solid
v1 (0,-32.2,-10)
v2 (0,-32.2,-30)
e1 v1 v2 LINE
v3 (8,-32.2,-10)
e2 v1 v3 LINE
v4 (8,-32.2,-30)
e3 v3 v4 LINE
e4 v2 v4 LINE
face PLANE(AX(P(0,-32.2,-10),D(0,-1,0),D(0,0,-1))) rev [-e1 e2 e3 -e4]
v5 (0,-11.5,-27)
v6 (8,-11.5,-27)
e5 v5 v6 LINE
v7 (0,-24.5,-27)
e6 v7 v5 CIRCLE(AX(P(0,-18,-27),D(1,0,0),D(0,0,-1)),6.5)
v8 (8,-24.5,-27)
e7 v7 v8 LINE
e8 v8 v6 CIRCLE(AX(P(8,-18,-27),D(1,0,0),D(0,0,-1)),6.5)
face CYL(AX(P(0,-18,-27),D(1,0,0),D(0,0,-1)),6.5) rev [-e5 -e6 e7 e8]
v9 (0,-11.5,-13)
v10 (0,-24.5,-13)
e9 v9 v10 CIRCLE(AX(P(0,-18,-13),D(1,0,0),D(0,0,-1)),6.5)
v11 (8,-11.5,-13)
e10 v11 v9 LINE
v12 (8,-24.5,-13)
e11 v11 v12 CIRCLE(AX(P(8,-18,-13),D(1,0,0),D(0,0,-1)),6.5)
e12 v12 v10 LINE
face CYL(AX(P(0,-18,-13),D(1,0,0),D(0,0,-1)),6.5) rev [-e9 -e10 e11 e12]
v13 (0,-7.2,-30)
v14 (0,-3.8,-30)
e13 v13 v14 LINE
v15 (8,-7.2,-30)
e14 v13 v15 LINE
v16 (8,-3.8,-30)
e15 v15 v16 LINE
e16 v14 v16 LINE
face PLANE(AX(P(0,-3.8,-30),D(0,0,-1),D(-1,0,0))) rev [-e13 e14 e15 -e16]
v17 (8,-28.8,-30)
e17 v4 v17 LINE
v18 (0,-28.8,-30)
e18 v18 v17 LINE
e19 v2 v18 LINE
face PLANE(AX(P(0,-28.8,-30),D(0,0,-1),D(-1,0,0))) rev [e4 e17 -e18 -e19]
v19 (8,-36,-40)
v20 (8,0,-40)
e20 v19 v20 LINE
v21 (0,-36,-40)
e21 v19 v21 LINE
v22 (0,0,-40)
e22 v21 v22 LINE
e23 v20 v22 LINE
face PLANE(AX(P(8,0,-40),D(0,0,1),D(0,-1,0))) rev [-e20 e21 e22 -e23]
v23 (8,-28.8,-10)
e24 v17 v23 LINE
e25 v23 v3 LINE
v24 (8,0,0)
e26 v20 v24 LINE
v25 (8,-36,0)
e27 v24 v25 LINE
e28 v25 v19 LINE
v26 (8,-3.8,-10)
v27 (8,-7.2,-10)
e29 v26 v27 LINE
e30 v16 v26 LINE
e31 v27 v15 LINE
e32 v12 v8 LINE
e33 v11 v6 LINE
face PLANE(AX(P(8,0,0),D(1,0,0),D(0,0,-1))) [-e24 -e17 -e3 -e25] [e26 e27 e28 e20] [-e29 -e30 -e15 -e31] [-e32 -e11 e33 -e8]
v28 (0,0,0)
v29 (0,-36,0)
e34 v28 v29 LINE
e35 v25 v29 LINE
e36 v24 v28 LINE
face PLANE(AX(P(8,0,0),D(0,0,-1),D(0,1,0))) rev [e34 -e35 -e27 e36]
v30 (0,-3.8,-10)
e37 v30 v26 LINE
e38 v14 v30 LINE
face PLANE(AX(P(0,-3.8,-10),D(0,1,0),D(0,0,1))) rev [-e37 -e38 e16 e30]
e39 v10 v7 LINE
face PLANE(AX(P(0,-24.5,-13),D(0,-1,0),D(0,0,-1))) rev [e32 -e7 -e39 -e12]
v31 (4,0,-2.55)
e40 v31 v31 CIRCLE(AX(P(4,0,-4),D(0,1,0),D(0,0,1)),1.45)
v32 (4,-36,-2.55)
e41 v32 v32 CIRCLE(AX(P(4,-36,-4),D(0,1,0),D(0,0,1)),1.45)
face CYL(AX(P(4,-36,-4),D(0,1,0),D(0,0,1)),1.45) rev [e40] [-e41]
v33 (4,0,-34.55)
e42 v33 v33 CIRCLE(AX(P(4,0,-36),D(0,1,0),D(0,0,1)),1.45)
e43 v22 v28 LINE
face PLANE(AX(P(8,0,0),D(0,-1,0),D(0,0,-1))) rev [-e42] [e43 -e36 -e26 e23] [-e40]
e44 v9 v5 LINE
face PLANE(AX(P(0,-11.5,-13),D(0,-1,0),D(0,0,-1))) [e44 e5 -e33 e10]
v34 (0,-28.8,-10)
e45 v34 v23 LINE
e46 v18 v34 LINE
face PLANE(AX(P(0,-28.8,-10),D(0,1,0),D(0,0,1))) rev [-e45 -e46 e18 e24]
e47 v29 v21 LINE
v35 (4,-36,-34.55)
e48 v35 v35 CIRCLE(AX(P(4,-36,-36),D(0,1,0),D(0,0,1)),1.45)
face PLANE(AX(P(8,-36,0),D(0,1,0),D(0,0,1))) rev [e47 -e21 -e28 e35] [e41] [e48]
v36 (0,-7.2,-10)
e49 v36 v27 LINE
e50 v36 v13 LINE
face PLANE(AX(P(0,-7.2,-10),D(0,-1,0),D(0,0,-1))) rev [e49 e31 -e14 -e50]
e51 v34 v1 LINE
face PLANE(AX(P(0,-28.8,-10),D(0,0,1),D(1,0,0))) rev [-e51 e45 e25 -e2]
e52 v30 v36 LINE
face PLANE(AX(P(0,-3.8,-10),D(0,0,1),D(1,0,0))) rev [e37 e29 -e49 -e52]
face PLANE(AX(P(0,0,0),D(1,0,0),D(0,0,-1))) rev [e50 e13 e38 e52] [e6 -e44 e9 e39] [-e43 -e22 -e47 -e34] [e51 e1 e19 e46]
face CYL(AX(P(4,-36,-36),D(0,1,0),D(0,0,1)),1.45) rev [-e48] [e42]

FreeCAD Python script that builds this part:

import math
import FreeCAD as App
import Part
import Sketcher

V = App.Vector

doc = App.newDocument("Part")
body = doc.addObject("PartDesign::Body", "Body")

sketch1 = doc.addObject("Sketcher::SketchObject", "Sketch")
body.addObject(sketch1)
sketch1.AttachmentSupport = (doc.YZ_Plane, [""])
sketch1.MapMode = "FlatFace"
sketch1.addGeometry(Part.LineSegment(V(0, 0, 0), V(-36, 0, 0)), False)
sketch1.addGeometry(Part.LineSegment(V(-36, 0, 0), V(-36, -40, 0)), False)
sketch1.addGeometry(Part.LineSegment(V(-36, -40, 0), V(0, -40, 0)), False)
sketch1.addGeometry(Part.LineSegment(V(0, -40, 0), V(0, 0, 0)), False)
sketch1.addConstraint(Sketcher.Constraint("Coincident", 0, 2, 1, 1))
sketch1.addConstraint(Sketcher.Constraint("Coincident", 1, 2, 2, 1))
sketch1.addConstraint(Sketcher.Constraint("Coincident", 2, 2, 3, 1))
sketch1.addConstraint(Sketcher.Constraint("Coincident", 3, 2, 0, 1))
sketch1.addConstraint(Sketcher.Constraint("Horizontal", 0))
sketch1.addConstraint(Sketcher.Constraint("Vertical", 1))
sketch1.addConstraint(Sketcher.Constraint("Horizontal", 2))
sketch1.addConstraint(Sketcher.Constraint("Vertical", 3))
sketch1.addConstraint(Sketcher.Constraint("Coincident", 3, 2, -1, 1))
sketch1.addConstraint(Sketcher.Constraint("DistanceX", 0, 2, 0, 1, 36.0))
sketch1.addConstraint(Sketcher.Constraint("DistanceY", 1, 2, 1, 1, 40.0))
pad1 = doc.addObject("PartDesign::Pad", "Pad")
body.addObject(pad1)
pad1.Profile = sketch1
pad1.Length = 8

sketch2 = doc.addObject("Sketcher::SketchObject", "Sketch001")
body.addObject(sketch2)
sketch2.AttachmentSupport = (doc.YZ_Plane, [""])
sketch2.MapMode = "FlatFace"
sketch2.AttachmentOffset = App.Placement(V(0, 0, 8), App.Rotation())
sketch2.addGeometry(Part.Circle(V(-18, -20, 0), V(0, 0, 1), 6), False)
sketch2.addConstraint(Sketcher.Constraint("Diameter", 0, 12.0))
sketch2.addConstraint(Sketcher.Constraint("DistanceX", 0, 3, -1, 1, 18.0))
sketch2.addConstraint(Sketcher.Constraint("DistanceY", 0, 3, -1, 1, 20.0))
pocket1 = doc.addObject("PartDesign::Pocket", "Pocket")
body.addObject(pocket1)
pocket1.Profile = sketch2
pocket1.Type = "ThroughAll"

sketch3 = doc.addObject("Sketcher::SketchObject", "Sketch002")
body.addObject(sketch3)
sketch3.AttachmentSupport = (doc.YZ_Plane, [""])
sketch3.MapMode = "FlatFace"
sketch3.AttachmentOffset = App.Placement(V(0, 0, 8), App.Rotation())
sketch3.addGeometry(Part.LineSegment(V(-3.8, -10, 0), V(-7.2, -10, 0)), False)
sketch3.addGeometry(Part.LineSegment(V(-7.2, -10, 0), V(-7.2, -30, 0)), False)
sketch3.addGeometry(Part.LineSegment(V(-7.2, -30, 0), V(-3.8, -30, 0)), False)
sketch3.addGeometry(Part.LineSegment(V(-3.8, -30, 0), V(-3.8, -10, 0)), False)
sketch3.addGeometry(Part.LineSegment(V(-28.8, -10, 0), V(-32.2, -10, 0)), False)
sketch3.addGeometry(Part.LineSegment(V(-32.2, -10, 0), V(-32.2, -30, 0)), False)
sketch3.addGeometry(Part.LineSegment(V(-32.2, -30, 0), V(-28.8, -30, 0)), False)
sketch3.addGeometry(Part.LineSegment(V(-28.8, -30, 0), V(-28.8, -10, 0)), False)
sketch3.addConstraint(Sketcher.Constraint("Coincident", 0, 2, 1, 1))
sketch3.addConstraint(Sketcher.Constraint("Coincident", 1, 2, 2, 1))
sketch3.addConstraint(Sketcher.Constraint("Coincident", 2, 2, 3, 1))
sketch3.addConstraint(Sketcher.Constraint("Coincident", 3, 2, 0, 1))
sketch3.addConstraint(Sketcher.Constraint("Coincident", 4, 2, 5, 1))
sketch3.addConstraint(Sketcher.Constraint("Coincident", 5, 2, 6, 1))
sketch3.addConstraint(Sketcher.Constraint("Coincident", 6, 2, 7, 1))
sketch3.addConstraint(Sketcher.Constraint("Coincident", 7, 2, 4, 1))
sketch3.addConstraint(Sketcher.Constraint("Horizontal", 0))
sketch3.addConstraint(Sketcher.Constraint("Vertical", 1))
sketch3.addConstraint(Sketcher.Constraint("Horizontal", 2))
sketch3.addConstraint(Sketcher.Constraint("Vertical", 3))
sketch3.addConstraint(Sketcher.Constraint("Horizontal", 4))
sketch3.addConstraint(Sketcher.Constraint("Vertical", 5))
sketch3.addConstraint(Sketcher.Constraint("Horizontal", 6))
sketch3.addConstraint(Sketcher.Constraint("Vertical", 7))
sketch3.addConstraint(Sketcher.Constraint("Horizontal", 3, 2, 4, 2))
sketch3.addConstraint(Sketcher.Constraint("Horizontal", 2, 2, 5, 2))
sketch3.addConstraint(Sketcher.Constraint("Equal", 2, 4))
sketch3.addConstraint(Sketcher.Constraint("DistanceY", 1, 2, 1, 1, 20.0))
sketch3.addConstraint(Sketcher.Constraint("DistanceX", 0, 2, 0, 1, 3.4))
sketch3.addConstraint(Sketcher.Constraint("DistanceY", 0, 2, -1, 1, 10.0))
sketch3.addConstraint(Sketcher.Constraint("DistanceX", 4, 2, 0, 2, 25.0))
sketch3.addConstraint(Sketcher.Constraint("DistanceX", 0, 2, -1, 1, 7.2))
pocket2 = doc.addObject("PartDesign::Pocket", "Pocket001")
body.addObject(pocket2)
pocket2.Profile = sketch3
pocket2.Type = "ThroughAll"

sketch4 = doc.addObject("Sketcher::SketchObject", "Sketch003")
body.addObject(sketch4)
sketch4.AttachmentSupport = (doc.XZ_Plane, [""])
sketch4.MapMode = "FlatFace"
sketch4.addGeometry(Part.Circle(V(4, -4, 0), V(0, 0, 1), 1.4), False)
sketch4.addGeometry(Part.Circle(V(4, -36, 0), V(0, 0, 1), 1.4), False)
sketch4.addConstraint(Sketcher.Constraint("Equal", 0, 1))
sketch4.addConstraint(Sketcher.Constraint("Vertical", 0, 3, 1, 3))
sketch4.addConstraint(Sketcher.Constraint("Diameter", 0, 2.9))
sketch4.addConstraint(Sketcher.Constraint("DistanceX", -1, 1, 0, 3, 4.0))
sketch4.addConstraint(Sketcher.Constraint("DistanceY", 0, 3, -1, 1, 4.0))
sketch4.addConstraint(Sketcher.Constraint("DistanceY", 1, 3, -1, 1, 36.0))
pocket3 = doc.addObject("PartDesign::Pocket", "Pocket002")
body.addObject(pocket3)
pocket3.Profile = sketch4
pocket3.Type = "ThroughAll"
pocket3.Reversed = True

sketch5 = doc.addObject("Sketcher::SketchObject", "Sketch004")
body.addObject(sketch5)
sketch5.AttachmentSupport = (doc.YZ_Plane, [""])
sketch5.MapMode = "FlatFace"
sketch5.AttachmentOffset = App.Placement(V(0, 0, 8), App.Rotation())
sketch5.addGeometry(Part.ArcOfCircle(Part.Circle(V(-18, -27, 0), V(0, 0, 1), 6), math.radians(180), math.radians(360)), False)
sketch5.addGeometry(Part.LineSegment(V(-12, -27, 0), V(-12, -13, 0)), False)
sketch5.addGeometry(Part.ArcOfCircle(Part.Circle(V(-18, -13, 0), V(0, 0, 1), 6), math.radians(0), math.radians(180)), False)
sketch5.addGeometry(Part.LineSegment(V(-24, -13, 0), V(-24, -27, 0)), False)
sketch5.addConstraint(Sketcher.Constraint("Tangent", 0, 2, 1, 1))
sketch5.addConstraint(Sketcher.Constraint("Tangent", 1, 2, 2, 1))
sketch5.addConstraint(Sketcher.Constraint("Tangent", 2, 2, 3, 1))
sketch5.addConstraint(Sketcher.Constraint("Tangent", 3, 2, 0, 1))
sketch5.addConstraint(Sketcher.Constraint("Vertical", 1))
sketch5.addConstraint(Sketcher.Constraint("Vertical", 3))
sketch5.addConstraint(Sketcher.Constraint("Radius", 0, 6.5))
sketch5.addConstraint(Sketcher.Constraint("DistanceY", 1, 1, 1, 2, 14.0))
sketch5.addConstraint(Sketcher.Constraint("DistanceX", 0, 3, -1, 1, 18.0))
sketch5.addConstraint(Sketcher.Constraint("DistanceY", 0, 3, -1, 1, 27.0))
pocket4 = doc.addObject("PartDesign::Pocket", "Pocket003")
body.addObject(pocket4)
pocket4.Profile = sketch5
pocket4.Type = "ThroughAll"

doc.recompute()
